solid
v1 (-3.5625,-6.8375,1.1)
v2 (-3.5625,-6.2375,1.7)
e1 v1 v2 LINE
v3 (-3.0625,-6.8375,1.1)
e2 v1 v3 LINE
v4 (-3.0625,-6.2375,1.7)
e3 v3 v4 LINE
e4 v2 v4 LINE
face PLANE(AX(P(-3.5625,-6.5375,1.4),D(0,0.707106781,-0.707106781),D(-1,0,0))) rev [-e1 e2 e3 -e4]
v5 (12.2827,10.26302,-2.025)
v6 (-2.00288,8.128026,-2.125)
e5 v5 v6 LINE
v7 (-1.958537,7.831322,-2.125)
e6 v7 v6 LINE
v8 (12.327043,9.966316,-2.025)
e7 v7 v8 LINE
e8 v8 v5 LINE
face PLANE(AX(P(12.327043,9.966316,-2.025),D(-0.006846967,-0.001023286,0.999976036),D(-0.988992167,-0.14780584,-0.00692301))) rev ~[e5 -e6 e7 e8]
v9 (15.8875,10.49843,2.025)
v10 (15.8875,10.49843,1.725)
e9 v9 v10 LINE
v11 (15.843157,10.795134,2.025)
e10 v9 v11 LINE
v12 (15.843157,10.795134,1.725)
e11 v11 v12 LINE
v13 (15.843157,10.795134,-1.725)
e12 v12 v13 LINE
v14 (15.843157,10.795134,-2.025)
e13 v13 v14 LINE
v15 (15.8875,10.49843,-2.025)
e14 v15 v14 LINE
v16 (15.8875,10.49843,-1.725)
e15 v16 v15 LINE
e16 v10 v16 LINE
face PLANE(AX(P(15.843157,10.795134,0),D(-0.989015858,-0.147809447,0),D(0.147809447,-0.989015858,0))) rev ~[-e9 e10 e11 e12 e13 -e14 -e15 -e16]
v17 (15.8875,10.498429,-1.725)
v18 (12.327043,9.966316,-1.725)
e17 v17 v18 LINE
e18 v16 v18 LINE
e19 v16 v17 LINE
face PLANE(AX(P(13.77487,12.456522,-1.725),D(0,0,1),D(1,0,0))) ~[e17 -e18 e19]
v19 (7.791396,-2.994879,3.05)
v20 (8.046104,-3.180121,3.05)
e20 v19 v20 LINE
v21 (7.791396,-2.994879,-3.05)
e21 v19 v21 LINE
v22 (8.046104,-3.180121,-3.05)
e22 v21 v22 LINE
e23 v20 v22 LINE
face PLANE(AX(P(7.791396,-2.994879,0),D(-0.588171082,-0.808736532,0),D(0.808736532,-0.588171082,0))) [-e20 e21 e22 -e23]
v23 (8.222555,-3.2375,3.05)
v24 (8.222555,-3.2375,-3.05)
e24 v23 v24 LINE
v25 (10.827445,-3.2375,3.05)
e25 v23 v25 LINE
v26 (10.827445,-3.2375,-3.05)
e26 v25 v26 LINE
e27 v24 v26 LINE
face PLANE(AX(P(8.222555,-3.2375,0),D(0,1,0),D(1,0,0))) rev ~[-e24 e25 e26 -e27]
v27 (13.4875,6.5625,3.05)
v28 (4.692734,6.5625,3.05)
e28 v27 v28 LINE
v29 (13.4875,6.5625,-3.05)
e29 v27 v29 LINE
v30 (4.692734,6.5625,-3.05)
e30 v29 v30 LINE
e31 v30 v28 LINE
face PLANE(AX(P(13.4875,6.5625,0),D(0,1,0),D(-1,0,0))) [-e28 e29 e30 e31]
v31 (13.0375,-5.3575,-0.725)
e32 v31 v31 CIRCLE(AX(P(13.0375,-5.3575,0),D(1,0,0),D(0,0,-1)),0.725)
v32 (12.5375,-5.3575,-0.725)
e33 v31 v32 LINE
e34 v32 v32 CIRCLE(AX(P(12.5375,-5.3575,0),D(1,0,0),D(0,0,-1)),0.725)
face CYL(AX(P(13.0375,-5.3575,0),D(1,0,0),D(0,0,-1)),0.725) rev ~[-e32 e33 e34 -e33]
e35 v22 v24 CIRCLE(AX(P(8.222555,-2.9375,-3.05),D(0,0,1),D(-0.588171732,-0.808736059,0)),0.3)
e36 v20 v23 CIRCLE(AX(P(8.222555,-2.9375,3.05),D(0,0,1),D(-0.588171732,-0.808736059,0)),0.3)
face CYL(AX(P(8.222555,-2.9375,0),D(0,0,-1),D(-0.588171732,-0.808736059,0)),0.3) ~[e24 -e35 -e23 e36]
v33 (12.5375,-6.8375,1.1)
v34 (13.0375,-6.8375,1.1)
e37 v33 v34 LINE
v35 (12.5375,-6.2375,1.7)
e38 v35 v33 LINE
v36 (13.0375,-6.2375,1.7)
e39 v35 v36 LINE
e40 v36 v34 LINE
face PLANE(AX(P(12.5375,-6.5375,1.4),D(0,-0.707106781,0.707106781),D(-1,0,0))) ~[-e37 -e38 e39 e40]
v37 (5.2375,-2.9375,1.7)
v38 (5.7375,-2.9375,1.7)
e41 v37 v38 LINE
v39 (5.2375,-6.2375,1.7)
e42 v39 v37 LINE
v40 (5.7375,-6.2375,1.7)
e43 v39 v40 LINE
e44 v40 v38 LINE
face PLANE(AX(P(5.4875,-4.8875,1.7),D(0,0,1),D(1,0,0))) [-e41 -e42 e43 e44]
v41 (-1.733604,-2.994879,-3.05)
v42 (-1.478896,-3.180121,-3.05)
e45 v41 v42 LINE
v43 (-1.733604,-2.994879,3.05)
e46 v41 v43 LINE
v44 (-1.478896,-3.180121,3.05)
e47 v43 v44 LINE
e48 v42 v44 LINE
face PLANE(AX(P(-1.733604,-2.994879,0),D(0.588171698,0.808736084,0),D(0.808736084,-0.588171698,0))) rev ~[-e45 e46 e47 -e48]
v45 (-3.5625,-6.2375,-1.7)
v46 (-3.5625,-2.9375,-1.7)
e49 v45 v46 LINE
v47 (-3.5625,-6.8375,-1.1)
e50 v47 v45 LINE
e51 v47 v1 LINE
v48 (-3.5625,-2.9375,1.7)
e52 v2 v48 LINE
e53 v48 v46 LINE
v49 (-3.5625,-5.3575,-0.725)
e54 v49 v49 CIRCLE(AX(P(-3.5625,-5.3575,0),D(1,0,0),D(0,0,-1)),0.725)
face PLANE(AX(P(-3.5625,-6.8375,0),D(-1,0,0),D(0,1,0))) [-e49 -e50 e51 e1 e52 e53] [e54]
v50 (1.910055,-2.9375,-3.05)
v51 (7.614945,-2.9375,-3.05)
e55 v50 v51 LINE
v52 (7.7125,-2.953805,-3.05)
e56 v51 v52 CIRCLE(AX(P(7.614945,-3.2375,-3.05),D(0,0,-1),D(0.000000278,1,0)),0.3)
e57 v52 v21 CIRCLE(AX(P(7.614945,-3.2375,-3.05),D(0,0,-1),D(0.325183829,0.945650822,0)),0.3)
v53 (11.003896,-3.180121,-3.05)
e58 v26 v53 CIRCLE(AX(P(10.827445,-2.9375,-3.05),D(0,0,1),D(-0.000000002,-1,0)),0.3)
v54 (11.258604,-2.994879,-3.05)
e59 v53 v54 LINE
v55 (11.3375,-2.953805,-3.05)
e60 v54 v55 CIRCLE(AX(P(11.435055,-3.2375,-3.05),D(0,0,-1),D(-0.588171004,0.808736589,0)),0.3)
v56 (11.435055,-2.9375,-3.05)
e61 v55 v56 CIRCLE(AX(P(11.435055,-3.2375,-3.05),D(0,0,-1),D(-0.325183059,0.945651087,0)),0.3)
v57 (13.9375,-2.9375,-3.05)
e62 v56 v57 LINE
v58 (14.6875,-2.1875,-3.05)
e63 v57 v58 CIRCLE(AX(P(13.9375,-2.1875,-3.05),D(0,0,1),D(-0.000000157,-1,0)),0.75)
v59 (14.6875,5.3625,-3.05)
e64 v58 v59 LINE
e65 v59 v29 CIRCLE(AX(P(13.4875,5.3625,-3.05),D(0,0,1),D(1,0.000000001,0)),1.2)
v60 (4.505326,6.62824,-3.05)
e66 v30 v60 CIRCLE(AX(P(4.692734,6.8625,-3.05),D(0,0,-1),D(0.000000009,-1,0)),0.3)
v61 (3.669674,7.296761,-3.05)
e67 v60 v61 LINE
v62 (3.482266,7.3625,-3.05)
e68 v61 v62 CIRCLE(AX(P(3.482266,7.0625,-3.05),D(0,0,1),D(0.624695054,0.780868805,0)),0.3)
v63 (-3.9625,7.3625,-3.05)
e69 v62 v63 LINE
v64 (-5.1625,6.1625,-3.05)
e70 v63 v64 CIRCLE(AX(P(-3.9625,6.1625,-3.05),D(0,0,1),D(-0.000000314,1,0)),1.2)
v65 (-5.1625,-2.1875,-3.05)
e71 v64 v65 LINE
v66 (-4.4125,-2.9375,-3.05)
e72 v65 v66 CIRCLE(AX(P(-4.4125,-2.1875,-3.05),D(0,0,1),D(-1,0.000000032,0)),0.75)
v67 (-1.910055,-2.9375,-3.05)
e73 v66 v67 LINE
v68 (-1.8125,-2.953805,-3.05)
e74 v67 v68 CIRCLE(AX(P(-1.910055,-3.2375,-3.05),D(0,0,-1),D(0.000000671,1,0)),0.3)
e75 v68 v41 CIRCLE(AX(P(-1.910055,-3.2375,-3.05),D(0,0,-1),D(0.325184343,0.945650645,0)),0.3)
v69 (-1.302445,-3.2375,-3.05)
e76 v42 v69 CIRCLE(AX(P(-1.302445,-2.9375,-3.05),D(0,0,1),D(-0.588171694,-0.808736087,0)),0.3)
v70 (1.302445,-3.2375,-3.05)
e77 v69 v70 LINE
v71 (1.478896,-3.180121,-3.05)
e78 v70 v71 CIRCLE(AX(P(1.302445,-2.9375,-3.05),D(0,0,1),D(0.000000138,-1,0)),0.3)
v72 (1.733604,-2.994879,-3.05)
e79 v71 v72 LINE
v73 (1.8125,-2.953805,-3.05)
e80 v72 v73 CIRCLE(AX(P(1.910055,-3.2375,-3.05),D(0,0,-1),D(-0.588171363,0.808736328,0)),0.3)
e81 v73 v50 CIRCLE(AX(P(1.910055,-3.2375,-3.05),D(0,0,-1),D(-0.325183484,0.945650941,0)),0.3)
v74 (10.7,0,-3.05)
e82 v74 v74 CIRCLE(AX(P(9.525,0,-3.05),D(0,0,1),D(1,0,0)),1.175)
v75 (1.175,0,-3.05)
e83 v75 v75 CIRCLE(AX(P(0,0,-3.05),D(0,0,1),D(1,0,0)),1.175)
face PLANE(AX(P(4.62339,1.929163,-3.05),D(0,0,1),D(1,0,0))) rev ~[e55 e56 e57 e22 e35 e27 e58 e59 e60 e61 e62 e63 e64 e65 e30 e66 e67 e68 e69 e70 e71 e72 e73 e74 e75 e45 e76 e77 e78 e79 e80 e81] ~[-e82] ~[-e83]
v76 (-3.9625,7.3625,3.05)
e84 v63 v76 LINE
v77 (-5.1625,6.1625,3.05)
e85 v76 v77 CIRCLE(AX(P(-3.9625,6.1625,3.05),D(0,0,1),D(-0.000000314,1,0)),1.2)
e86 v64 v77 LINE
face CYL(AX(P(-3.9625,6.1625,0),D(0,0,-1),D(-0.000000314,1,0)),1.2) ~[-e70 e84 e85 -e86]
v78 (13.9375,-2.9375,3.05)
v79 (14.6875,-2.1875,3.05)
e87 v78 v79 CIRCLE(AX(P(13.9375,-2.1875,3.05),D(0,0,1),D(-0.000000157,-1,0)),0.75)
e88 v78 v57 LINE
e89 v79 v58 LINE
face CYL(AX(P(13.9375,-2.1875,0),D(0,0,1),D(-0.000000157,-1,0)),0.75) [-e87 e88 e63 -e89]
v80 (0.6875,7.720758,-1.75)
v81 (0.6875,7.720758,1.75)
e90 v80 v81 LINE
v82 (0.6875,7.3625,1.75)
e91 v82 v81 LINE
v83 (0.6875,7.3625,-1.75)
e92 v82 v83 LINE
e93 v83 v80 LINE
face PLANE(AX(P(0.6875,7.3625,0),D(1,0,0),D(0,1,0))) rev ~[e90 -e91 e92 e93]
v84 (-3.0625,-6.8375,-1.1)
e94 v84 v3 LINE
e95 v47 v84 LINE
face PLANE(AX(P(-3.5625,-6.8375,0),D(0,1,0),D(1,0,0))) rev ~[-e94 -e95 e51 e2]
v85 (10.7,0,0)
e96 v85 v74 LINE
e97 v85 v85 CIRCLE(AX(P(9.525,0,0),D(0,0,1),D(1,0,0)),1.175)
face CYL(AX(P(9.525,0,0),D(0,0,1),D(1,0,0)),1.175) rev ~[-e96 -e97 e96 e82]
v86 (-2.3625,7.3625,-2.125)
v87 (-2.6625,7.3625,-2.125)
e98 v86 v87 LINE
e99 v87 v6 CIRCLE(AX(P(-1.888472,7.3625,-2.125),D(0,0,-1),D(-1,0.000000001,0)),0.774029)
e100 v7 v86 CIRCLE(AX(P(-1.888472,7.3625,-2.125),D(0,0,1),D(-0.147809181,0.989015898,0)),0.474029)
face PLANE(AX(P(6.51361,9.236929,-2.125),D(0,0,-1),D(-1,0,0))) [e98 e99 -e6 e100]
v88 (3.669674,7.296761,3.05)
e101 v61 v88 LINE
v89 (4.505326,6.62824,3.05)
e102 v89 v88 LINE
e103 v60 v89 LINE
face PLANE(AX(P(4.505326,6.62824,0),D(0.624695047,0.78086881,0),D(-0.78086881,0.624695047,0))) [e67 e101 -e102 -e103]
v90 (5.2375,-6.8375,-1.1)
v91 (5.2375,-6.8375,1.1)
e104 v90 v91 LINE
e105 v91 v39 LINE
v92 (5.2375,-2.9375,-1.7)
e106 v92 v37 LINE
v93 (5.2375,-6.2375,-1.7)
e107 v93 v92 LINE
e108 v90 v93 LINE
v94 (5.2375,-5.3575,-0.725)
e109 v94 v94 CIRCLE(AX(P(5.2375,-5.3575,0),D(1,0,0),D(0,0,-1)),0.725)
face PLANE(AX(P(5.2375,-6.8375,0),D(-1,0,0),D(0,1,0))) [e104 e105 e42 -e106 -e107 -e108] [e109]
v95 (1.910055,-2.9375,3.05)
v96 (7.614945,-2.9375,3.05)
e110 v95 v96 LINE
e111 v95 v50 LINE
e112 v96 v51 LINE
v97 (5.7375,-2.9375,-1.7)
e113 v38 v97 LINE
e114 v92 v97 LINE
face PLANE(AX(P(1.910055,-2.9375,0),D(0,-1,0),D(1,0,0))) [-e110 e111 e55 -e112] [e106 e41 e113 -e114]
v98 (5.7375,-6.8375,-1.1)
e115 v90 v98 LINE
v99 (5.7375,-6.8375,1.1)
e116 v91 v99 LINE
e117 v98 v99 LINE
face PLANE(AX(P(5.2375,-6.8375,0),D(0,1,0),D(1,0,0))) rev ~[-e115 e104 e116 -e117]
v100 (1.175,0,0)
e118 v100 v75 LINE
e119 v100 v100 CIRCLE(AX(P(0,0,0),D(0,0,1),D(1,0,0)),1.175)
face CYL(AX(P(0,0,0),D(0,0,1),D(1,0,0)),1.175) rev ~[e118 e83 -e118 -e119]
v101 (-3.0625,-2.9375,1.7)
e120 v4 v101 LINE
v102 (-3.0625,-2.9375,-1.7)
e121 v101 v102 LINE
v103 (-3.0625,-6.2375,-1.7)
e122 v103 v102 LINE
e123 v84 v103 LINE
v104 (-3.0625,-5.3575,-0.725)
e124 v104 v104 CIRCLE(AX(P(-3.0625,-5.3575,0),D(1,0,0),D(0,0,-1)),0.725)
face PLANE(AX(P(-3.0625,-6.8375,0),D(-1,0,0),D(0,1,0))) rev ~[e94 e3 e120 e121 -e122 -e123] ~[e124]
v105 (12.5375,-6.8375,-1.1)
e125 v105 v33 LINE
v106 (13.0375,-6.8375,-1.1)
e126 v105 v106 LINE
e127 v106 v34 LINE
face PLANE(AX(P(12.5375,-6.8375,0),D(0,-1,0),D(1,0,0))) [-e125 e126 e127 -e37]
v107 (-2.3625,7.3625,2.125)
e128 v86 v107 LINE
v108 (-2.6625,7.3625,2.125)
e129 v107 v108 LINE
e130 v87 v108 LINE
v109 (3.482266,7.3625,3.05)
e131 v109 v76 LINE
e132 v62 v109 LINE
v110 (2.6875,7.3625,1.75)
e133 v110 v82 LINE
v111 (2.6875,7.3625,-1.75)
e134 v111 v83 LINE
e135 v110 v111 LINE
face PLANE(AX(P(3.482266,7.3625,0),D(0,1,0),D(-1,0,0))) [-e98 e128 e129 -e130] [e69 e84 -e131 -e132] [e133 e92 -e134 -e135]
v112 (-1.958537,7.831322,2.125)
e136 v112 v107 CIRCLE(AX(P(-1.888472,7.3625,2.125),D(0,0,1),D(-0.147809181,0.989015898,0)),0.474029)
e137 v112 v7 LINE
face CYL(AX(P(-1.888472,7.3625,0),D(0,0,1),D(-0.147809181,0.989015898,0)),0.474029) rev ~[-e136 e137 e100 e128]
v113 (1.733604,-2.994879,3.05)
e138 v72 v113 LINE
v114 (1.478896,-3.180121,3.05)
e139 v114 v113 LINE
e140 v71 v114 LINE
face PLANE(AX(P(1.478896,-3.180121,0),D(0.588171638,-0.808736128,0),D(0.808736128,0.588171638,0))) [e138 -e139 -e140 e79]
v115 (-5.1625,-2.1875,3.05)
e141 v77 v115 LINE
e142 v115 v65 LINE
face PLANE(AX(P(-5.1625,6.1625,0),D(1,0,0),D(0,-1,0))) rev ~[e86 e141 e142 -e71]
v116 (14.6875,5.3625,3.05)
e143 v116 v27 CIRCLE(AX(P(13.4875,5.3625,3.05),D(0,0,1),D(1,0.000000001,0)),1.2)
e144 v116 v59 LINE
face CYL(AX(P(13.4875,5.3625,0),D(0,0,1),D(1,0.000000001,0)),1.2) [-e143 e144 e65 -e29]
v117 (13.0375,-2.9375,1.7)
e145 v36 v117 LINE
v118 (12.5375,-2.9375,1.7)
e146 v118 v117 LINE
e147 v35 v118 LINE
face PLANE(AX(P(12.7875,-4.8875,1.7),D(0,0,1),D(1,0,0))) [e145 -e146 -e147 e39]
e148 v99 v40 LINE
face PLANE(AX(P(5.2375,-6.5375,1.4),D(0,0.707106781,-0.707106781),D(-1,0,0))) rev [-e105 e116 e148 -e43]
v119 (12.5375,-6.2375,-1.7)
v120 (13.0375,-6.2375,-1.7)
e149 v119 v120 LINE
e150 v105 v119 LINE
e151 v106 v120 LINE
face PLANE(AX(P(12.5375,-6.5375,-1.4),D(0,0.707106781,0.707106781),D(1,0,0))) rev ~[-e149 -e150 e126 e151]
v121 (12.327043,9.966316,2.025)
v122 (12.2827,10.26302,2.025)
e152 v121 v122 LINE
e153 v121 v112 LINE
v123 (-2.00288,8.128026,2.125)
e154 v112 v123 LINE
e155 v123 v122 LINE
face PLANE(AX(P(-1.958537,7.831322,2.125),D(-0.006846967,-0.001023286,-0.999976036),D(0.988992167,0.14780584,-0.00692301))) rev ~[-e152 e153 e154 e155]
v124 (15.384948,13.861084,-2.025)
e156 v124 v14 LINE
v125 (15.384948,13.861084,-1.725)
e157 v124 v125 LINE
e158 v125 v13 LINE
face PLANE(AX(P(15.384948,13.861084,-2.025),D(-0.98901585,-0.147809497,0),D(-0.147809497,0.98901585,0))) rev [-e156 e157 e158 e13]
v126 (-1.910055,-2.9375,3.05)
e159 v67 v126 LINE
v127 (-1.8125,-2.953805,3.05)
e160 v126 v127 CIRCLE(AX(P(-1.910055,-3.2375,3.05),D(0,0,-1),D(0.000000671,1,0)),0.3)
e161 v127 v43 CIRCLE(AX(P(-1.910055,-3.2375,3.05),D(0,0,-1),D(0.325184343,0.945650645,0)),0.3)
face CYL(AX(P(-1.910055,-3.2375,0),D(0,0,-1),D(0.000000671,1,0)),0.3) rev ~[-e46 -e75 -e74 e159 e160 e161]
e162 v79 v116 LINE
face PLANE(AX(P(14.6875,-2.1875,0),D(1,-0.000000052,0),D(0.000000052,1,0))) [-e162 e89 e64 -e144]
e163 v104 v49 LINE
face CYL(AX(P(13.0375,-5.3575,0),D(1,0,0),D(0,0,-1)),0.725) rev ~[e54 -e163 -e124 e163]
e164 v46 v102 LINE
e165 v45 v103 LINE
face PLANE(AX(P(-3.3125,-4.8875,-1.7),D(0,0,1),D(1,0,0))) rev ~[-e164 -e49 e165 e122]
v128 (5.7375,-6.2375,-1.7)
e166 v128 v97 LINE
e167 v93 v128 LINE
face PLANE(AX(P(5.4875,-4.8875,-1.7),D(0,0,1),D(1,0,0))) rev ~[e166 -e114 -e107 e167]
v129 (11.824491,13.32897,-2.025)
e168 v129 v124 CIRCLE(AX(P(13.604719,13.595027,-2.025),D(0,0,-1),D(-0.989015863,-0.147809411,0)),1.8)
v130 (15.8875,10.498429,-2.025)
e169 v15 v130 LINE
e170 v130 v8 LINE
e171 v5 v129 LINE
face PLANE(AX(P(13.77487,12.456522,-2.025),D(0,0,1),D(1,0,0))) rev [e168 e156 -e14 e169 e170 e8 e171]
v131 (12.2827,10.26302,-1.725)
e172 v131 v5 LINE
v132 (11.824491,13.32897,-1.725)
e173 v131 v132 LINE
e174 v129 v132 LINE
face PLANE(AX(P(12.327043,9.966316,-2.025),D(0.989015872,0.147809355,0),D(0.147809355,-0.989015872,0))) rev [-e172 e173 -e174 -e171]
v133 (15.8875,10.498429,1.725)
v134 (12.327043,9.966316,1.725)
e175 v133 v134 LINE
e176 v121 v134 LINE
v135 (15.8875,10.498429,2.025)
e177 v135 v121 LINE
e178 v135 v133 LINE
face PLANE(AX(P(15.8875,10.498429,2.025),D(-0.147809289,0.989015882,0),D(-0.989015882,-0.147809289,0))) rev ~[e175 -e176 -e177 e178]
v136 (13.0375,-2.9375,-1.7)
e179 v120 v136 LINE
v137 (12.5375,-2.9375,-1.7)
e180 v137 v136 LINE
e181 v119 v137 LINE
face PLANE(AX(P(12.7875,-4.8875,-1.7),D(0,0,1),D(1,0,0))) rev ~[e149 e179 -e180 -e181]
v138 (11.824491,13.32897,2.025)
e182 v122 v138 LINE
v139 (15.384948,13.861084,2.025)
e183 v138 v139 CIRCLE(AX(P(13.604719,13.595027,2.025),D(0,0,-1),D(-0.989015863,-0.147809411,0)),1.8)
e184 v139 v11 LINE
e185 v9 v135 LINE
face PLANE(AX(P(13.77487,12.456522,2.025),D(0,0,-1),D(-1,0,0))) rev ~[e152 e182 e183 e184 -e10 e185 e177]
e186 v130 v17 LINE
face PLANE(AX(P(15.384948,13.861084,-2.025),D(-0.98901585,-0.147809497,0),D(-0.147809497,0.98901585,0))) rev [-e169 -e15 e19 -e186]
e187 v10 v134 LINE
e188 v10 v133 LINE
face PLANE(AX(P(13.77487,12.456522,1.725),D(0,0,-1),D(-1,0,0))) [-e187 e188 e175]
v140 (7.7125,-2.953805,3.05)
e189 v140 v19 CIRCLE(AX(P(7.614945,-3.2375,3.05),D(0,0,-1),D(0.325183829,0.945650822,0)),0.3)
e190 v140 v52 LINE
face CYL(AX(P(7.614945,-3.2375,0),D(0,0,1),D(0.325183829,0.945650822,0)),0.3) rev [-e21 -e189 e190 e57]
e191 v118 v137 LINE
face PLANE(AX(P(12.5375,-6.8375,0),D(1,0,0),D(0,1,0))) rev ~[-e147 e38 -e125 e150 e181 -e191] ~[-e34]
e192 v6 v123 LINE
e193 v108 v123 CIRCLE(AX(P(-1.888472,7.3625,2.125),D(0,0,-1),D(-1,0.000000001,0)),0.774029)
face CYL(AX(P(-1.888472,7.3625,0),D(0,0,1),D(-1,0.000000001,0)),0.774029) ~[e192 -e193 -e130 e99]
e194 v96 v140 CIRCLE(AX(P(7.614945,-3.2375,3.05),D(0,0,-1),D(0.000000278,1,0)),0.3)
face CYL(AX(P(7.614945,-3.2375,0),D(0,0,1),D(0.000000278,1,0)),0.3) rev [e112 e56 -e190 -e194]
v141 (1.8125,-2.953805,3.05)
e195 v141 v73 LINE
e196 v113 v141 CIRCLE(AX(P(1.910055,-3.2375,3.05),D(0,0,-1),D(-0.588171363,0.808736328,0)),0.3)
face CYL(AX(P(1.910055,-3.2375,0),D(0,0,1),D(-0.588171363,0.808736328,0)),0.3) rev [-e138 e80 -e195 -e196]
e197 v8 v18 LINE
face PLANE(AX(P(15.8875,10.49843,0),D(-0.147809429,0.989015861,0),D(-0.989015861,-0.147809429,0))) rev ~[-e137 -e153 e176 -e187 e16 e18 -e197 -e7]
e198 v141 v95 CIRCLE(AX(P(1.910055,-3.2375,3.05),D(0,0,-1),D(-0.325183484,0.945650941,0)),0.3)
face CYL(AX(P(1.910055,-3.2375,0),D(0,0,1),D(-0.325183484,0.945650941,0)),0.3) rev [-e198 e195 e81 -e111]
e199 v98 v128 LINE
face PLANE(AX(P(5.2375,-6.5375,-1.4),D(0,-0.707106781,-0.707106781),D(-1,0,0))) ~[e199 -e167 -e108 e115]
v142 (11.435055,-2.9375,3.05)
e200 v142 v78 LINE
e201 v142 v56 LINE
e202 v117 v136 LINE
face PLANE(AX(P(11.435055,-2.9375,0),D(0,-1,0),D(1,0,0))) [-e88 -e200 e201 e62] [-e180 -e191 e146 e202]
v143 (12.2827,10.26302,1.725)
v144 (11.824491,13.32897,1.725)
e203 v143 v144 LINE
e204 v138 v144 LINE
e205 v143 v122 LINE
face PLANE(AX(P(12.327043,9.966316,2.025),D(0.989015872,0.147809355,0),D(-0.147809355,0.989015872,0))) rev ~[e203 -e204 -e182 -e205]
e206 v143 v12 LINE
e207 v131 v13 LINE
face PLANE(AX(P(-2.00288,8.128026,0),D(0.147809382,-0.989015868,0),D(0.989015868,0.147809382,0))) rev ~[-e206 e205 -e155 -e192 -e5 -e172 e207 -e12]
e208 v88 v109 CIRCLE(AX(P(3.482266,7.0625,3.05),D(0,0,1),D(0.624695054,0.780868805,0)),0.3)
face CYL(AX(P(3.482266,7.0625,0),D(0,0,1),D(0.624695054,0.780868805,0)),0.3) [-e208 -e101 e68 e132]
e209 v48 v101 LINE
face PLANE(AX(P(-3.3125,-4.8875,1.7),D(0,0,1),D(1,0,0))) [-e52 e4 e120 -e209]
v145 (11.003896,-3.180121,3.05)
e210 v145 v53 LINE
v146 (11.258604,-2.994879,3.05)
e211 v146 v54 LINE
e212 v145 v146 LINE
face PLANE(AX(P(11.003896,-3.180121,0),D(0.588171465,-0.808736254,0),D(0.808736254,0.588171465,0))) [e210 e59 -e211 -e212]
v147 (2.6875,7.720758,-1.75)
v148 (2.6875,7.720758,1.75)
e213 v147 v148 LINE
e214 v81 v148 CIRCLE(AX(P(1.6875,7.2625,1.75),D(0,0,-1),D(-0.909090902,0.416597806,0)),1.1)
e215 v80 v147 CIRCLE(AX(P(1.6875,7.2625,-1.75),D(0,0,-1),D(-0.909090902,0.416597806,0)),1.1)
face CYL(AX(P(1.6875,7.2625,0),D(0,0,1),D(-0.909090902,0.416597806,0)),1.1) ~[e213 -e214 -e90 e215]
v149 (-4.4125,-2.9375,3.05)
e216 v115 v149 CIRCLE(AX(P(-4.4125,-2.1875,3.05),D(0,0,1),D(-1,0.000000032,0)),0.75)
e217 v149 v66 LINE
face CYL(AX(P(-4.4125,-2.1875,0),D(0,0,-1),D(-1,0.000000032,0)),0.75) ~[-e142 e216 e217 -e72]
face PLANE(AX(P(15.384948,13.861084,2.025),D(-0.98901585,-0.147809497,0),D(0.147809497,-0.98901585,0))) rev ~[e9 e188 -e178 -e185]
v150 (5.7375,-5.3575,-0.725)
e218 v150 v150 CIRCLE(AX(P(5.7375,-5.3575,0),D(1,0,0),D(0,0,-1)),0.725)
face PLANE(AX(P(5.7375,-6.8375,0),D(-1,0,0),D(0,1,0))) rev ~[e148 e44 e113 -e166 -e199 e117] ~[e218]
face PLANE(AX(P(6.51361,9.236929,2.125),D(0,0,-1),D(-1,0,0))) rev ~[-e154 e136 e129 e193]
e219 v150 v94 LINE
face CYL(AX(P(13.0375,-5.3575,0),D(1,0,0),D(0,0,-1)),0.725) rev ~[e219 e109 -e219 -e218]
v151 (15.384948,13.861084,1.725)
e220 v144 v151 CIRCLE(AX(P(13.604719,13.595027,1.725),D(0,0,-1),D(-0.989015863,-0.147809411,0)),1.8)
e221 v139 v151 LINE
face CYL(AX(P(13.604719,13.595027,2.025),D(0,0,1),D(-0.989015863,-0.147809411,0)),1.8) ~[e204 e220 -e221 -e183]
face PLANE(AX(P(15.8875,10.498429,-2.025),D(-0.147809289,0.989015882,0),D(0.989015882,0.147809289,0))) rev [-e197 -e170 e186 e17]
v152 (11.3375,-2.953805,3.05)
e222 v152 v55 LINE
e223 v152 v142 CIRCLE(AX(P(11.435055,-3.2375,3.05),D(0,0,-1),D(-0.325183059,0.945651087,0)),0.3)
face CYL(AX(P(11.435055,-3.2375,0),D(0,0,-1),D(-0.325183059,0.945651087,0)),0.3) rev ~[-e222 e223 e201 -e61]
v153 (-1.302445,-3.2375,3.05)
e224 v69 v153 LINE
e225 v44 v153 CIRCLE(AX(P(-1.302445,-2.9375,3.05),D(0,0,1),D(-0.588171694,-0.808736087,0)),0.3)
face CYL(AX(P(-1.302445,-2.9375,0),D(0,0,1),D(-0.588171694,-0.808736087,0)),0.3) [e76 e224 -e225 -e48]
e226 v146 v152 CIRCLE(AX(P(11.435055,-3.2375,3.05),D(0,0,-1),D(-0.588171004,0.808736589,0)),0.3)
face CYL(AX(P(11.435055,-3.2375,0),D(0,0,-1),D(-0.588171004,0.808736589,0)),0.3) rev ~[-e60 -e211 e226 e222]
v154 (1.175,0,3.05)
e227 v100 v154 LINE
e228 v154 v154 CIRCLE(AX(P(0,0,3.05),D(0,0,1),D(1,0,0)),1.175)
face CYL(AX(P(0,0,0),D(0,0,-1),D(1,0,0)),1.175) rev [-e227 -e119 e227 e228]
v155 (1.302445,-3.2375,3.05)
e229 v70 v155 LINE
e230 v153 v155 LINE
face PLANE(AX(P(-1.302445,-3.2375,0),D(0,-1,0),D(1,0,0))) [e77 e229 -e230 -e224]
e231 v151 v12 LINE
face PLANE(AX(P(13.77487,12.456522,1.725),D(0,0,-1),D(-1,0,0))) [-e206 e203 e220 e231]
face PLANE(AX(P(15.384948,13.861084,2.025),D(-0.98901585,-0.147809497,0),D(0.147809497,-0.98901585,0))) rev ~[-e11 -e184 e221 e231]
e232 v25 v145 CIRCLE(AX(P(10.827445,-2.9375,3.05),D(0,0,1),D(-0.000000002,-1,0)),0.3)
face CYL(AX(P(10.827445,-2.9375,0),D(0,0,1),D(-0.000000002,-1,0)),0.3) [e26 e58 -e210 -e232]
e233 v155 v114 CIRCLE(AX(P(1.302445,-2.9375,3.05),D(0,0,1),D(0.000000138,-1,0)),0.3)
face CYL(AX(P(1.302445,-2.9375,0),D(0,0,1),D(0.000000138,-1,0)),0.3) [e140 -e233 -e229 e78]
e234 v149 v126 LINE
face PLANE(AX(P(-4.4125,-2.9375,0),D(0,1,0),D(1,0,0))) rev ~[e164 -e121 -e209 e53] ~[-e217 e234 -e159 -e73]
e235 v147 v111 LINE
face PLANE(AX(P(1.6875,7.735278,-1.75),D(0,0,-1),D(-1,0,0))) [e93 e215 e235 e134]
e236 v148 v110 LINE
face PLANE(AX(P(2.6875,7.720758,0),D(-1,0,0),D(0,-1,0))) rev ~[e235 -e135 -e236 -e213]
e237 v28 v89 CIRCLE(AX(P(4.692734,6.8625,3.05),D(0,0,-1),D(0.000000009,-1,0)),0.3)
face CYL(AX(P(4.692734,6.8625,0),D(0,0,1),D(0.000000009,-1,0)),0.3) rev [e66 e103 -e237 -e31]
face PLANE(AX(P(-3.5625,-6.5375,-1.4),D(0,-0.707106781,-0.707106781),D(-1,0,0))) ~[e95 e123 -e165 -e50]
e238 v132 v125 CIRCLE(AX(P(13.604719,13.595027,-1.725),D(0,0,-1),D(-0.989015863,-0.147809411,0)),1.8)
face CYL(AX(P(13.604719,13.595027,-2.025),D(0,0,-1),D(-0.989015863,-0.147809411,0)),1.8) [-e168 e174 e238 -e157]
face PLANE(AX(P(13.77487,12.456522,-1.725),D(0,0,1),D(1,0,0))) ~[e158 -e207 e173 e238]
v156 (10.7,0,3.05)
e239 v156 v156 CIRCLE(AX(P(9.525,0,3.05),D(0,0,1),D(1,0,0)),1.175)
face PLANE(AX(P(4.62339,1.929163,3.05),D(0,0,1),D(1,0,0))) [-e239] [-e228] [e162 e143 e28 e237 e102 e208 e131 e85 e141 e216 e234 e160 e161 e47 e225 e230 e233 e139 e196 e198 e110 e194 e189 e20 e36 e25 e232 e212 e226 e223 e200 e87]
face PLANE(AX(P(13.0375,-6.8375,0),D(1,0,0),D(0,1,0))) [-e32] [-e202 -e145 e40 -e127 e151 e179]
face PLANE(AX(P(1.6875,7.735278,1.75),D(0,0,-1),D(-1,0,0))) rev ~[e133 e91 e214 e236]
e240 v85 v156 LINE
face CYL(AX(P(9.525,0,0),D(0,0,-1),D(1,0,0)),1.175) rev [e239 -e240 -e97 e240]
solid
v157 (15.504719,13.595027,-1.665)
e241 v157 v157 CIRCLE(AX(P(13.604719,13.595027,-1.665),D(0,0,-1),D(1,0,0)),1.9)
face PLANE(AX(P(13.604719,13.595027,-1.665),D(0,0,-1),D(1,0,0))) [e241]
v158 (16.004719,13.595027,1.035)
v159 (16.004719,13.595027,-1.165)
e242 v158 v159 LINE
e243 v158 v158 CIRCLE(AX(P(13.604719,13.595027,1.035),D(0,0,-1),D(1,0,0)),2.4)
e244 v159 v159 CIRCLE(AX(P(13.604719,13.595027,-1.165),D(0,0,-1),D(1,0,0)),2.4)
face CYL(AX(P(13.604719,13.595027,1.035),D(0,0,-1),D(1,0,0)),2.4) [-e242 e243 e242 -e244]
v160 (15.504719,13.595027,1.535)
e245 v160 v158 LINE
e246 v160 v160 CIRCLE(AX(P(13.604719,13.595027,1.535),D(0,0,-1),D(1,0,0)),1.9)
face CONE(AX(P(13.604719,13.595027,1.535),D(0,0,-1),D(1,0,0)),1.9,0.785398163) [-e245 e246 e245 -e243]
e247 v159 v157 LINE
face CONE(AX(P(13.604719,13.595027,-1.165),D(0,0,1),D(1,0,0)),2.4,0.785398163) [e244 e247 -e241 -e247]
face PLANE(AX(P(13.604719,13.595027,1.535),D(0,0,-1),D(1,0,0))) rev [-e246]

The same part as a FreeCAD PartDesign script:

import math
import FreeCAD as App
import Part
import Sketcher
Q = App.Units.Quantity


def edges_at(feature, points):
    """Names of the edges that pass closest to the given points."""
    edges = feature.Shape.Edges
    near = lambda p: min(range(len(edges)), key=lambda i: edges[i].distToShape(Part.Vertex(*p))[0])
    return sorted({f"Edge{near(p) + 1}" for p in points})

doc = App.newDocument("Part")
body = doc.addObject("PartDesign::Body", "Body")

# Sketch on XY plane
sketch1 = body.newObject("Sketcher::SketchObject", "Sketch")
sketch1.AttachmentSupport = (doc.getObject("XY_Plane"), [""])
sketch1.MapMode = "FlatFace"
sketch1.addGeometry([
    Part.LineSegment(App.Vector(13.49, 6.56, 0), App.Vector(4.69, 6.56, 0)),  # 0
    Part.ArcOfCircle(Part.Circle(App.Vector(4.69, 6.86, 0), App.Vector(0, 0, 1), 0.3), math.radians(-129), math.radians(-90)),  # 1
    Part.LineSegment(App.Vector(4.51, 6.63, 0), App.Vector(3.67, 7.3, 0)),  # 2
    Part.ArcOfCircle(Part.Circle(App.Vector(3.48, 7.06, 0), App.Vector(0, 0, 1), 0.3), math.radians(51), math.radians(90)),  # 3
    Part.LineSegment(App.Vector(3.48, 7.36, 0), App.Vector(-3.96, 7.36, 0)),  # 4
    Part.ArcOfCircle(Part.Circle(App.Vector(-3.96, 6.16, 0), App.Vector(0, 0, 1), 1.2), math.radians(90), math.radians(180)),  # 5
    Part.LineSegment(App.Vector(-5.16, 6.16, 0), App.Vector(-5.16, -2.19, 0)),  # 6
    Part.ArcOfCircle(Part.Circle(App.Vector(-4.41, -2.19, 0), App.Vector(0, 0, 1), 0.75), math.radians(180), math.radians(270)),  # 7
    Part.LineSegment(App.Vector(-4.41, -2.94, 0), App.Vector(-1.91, -2.94, 0)),  # 8
    Part.ArcOfCircle(Part.Circle(App.Vector(-1.91, -3.24, 0), App.Vector(0, 0, 1), 0.3), math.radians(71.02), math.radians(90)),  # 9
    Part.ArcOfCircle(Part.Circle(App.Vector(-1.91, -3.24, 0), App.Vector(0, 0, 1), 0.3), math.radians(53.97), math.radians(71.02)),  # 10
    Part.LineSegment(App.Vector(-1.73, -2.99, 0), App.Vector(-1.48, -3.18, 0)),  # 11
    Part.ArcOfCircle(Part.Circle(App.Vector(-1.3, -2.94, 0), App.Vector(0, 0, 1), 0.3), math.radians(-126), math.radians(-90)),  # 12
    Part.LineSegment(App.Vector(-1.3, -3.24, 0), App.Vector(1.3, -3.24, 0)),  # 13
    Part.ArcOfCircle(Part.Circle(App.Vector(1.3, -2.94, 0), App.Vector(0, 0, 1), 0.3), math.radians(-90), math.radians(-54)),  # 14
    Part.LineSegment(App.Vector(1.48, -3.18, 0), App.Vector(1.73, -2.99, 0)),  # 15
    Part.ArcOfCircle(Part.Circle(App.Vector(1.91, -3.24, 0), App.Vector(0, 0, 1), 0.3), math.radians(108.98), math.radians(126.03)),  # 16
    Part.ArcOfCircle(Part.Circle(App.Vector(1.91, -3.24, 0), App.Vector(0, 0, 1), 0.3), math.radians(90), math.radians(108.98)),  # 17
    Part.LineSegment(App.Vector(1.91, -2.94, 0), App.Vector(7.61, -2.94, 0)),  # 18
    Part.ArcOfCircle(Part.Circle(App.Vector(7.61, -3.24, 0), App.Vector(0, 0, 1), 0.3), math.radians(71.02), math.radians(90)),  # 19
    Part.ArcOfCircle(Part.Circle(App.Vector(7.61, -3.24, 0), App.Vector(0, 0, 1), 0.3), math.radians(53.97), math.radians(71.02)),  # 20
    Part.LineSegment(App.Vector(7.79, -2.99, 0), App.Vector(8.05, -3.18, 0)),  # 21
    Part.ArcOfCircle(Part.Circle(App.Vector(8.22, -2.94, 0), App.Vector(0, 0, 1), 0.3), math.radians(-126), math.radians(-90)),  # 22
    Part.LineSegment(App.Vector(8.22, -3.24, 0), App.Vector(10.83, -3.24, 0)),  # 23
    Part.ArcOfCircle(Part.Circle(App.Vector(10.83, -2.94, 0), App.Vector(0, 0, 1), 0.3), math.radians(-90), math.radians(-54)),  # 24
    Part.LineSegment(App.Vector(11, -3.18, 0), App.Vector(11.26, -2.99, 0)),  # 25
    Part.ArcOfCircle(Part.Circle(App.Vector(11.44, -3.24, 0), App.Vector(0, 0, 1), 0.3), math.radians(108.98), math.radians(126.03)),  # 26
    Part.ArcOfCircle(Part.Circle(App.Vector(11.44, -3.24, 0), App.Vector(0, 0, 1), 0.3), math.radians(90), math.radians(108.98)),  # 27
    Part.LineSegment(App.Vector(11.44, -2.94, 0), App.Vector(13.94, -2.94, 0)),  # 28
    Part.ArcOfCircle(Part.Circle(App.Vector(13.94, -2.19, 0), App.Vector(0, 0, 1), 0.75), math.radians(-90), math.radians(0)),  # 29
    Part.LineSegment(App.Vector(14.69, -2.19, 0), App.Vector(14.69, 5.36, 0)),  # 30
    Part.ArcOfCircle(Part.Circle(App.Vector(13.49, 5.36, 0), App.Vector(0, 0, 1), 1.2), math.radians(0), math.radians(90)),  # 31
    Part.Circle(App.Vector(0, 0, 0), App.Vector(0, 0, 1), 1.18),  # 32
    Part.Circle(App.Vector(9.52, 0, 0), App.Vector(0, 0, 1), 1.18),  # 33
], False)
sketch1.addConstraint([
    Sketcher.Constraint("Tangent", 0, 2, 1, 2),
    Sketcher.Constraint("Tangent", 1, 1, 2, 1),
    Sketcher.Constraint("Tangent", 2, 2, 3, 1),
    Sketcher.Constraint("Tangent", 3, 2, 4, 1),
    Sketcher.Constraint("Tangent", 4, 2, 5, 1),
    Sketcher.Constraint("Tangent", 5, 2, 6, 1),
    Sketcher.Constraint("Tangent", 6, 2, 7, 1),
    Sketcher.Constraint("Tangent", 7, 2, 8, 1),
    Sketcher.Constraint("Tangent", 8, 2, 9, 2),
    Sketcher.Constraint("Tangent", 9, 1, 10, 2),
    Sketcher.Constraint("Tangent", 10, 1, 11, 1),
    Sketcher.Constraint("Tangent", 11, 2, 12, 1),
    Sketcher.Constraint("Tangent", 12, 2, 13, 1),
    Sketcher.Constraint("Tangent", 13, 2, 14, 1),
    Sketcher.Constraint("Tangent", 14, 2, 15, 1),
    Sketcher.Constraint("Tangent", 15, 2, 16, 2),
    Sketcher.Constraint("Tangent", 16, 1, 17, 2),
    Sketcher.Constraint("Tangent", 17, 1, 18, 1),
    Sketcher.Constraint("Tangent", 18, 2, 19, 2),
    Sketcher.Constraint("Tangent", 19, 1, 20, 2),
    Sketcher.Constraint("Tangent", 20, 1, 21, 1),
    Sketcher.Constraint("Tangent", 21, 2, 22, 1),
    Sketcher.Constraint("Tangent", 22, 2, 23, 1),
    Sketcher.Constraint("Tangent", 23, 2, 24, 1),
    Sketcher.Constraint("Tangent", 24, 2, 25, 1),
    Sketcher.Constraint("Tangent", 25, 2, 26, 2),
    Sketcher.Constraint("Tangent", 26, 1, 27, 2),
    Sketcher.Constraint("Tangent", 27, 1, 28, 1),
    Sketcher.Constraint("Tangent", 28, 2, 29, 1),
    Sketcher.Constraint("Tangent", 29, 2, 30, 1),
    Sketcher.Constraint("Tangent", 30, 2, 31, 1),
    Sketcher.Constraint("Tangent", 31, 2, 0, 1),
    Sketcher.Constraint("Horizontal", 0),
    Sketcher.Constraint("Horizontal", 4),
    Sketcher.Constraint("Vertical", 6),
    Sketcher.Constraint("Horizontal", 8),
    Sketcher.Constraint("Horizontal", 13),
    Sketcher.Constraint("Horizontal", 18),
    Sketcher.Constraint("Horizontal", 23),
    Sketcher.Constraint("Horizontal", 28),
    Sketcher.Constraint("Vertical", 30),
    Sketcher.Constraint("Coincident", 32, 3, -1, 1),
    Sketcher.Constraint("Equal", 1, 3),
    Sketcher.Constraint("Equal", 3, 9),
    Sketcher.Constraint("Equal", 9, 10),
    Sketcher.Constraint("Equal", 10, 12),
    Sketcher.Constraint("Equal", 12, 14),
    Sketcher.Constraint("Equal", 14, 16),
    Sketcher.Constraint("Equal", 16, 17),
    Sketcher.Constraint("Equal", 17, 19),
    Sketcher.Constraint("Equal", 19, 20),
    Sketcher.Constraint("Equal", 20, 22),
    Sketcher.Constraint("Equal", 22, 24),
    Sketcher.Constraint("Equal", 24, 26),
    Sketcher.Constraint("Equal", 26, 27),
    Sketcher.Constraint("Equal", 7, 29),
    Sketcher.Constraint("Equal", 5, 31),
    Sketcher.Constraint("Equal", 32, 33),
    Sketcher.Constraint("Symmetric", 9, 3, 16, 3, -2),
    Sketcher.Constraint("PointOnObject", 33, 3, -1),
    Sketcher.Constraint("Parallel", 11, 21),
    Sketcher.Constraint("Parallel", 15, 25),
    Sketcher.Constraint("Horizontal", 14, 3, 22, 3),
    Sketcher.Constraint("Horizontal", 20, 3, 26, 3),
    Sketcher.Constraint("Horizontal", 24, 3, 7, 2),
    Sketcher.Constraint("Horizontal", 11, 2, 14, 2),
    Sketcher.Constraint("Horizontal", 9, 1, 16, 1),
    Sketcher.Constraint("Horizontal", 16, 1, 19, 1),
    Sketcher.Constraint("Horizontal", 19, 1, 26, 1),
    Sketcher.Constraint("Equal", 13, 23),
    Sketcher.Constraint("Equal", 8, 28),
    Sketcher.Constraint("Radius", 1, 0.3),
    Sketcher.Constraint("Radius", 5, 1.2),
    Sketcher.Constraint("Diameter", 32, 2.35),
    Sketcher.Constraint("Radius", 7, 0.75),
    Sketcher.Constraint("DistanceY", 12, 3, 3, 3, 10.0),
    Sketcher.Constraint("DistanceY", 30, 1, 30, 2, 7.55),
    Sketcher.Constraint("DistanceX", 7, 2, 9, 1, 2.6),
    Sketcher.Constraint("DistanceX", -1, 1, 33, 3, 9.525),
    Sketcher.Constraint("DistanceX", 9, 3, 19, 3, 9.525),
    Sketcher.Constraint("DistanceX", 13, 1, 13, 2, 2.60489),
    Sketcher.Constraint("DistanceX", 18, 1, 18, 2, 5.70489),
    Sketcher.Constraint("DistanceY", -1, 1, 1, 3, 6.8625),
    Sketcher.Constraint("DistanceX", 5, 3, -1, 1, 3.9625),
    Sketcher.Constraint("DistanceX", 0, 2, 0, 1, 8.794765),
    Sketcher.Constraint("DistanceX", 4, 2, 4, 1, 7.444766),
])
pad1 = body.newObject("PartDesign::Pad", "Pad")
pad1.Profile = sketch1
pad1.Length = 6.1
pad1.Midplane = True

# Sketch on XY plane
sketch2 = body.newObject("Sketcher::SketchObject", "Sketch001")
sketch2.AttachmentSupport = (doc.getObject("XY_Plane"), [""])
sketch2.MapMode = "FlatFace"
sketch2.addGeometry([
    Part.LineSegment(App.Vector(-3.56, -2.94, 0), App.Vector(-3.56, -6.84, 0)),  # 0
    Part.LineSegment(App.Vector(-3.56, -6.84, 0), App.Vector(-3.06, -6.84, 0)),  # 1
    Part.LineSegment(App.Vector(-3.06, -6.84, 0), App.Vector(-3.06, -2.94, 0)),  # 2
    Part.LineSegment(App.Vector(-3.06, -2.94, 0), App.Vector(-3.56, -2.94, 0)),  # 3
    Part.LineSegment(App.Vector(5.24, -2.94, 0), App.Vector(5.24, -6.84, 0)),  # 4
    Part.LineSegment(App.Vector(5.24, -6.84, 0), App.Vector(5.74, -6.84, 0)),  # 5
    Part.LineSegment(App.Vector(5.74, -6.84, 0), App.Vector(5.74, -2.94, 0)),  # 6
    Part.LineSegment(App.Vector(5.74, -2.94, 0), App.Vector(5.24, -2.94, 0)),  # 7
    Part.LineSegment(App.Vector(12.54, -2.94, 0), App.Vector(12.54, -6.84, 0)),  # 8
    Part.LineSegment(App.Vector(12.54, -6.84, 0), App.Vector(13.04, -6.84, 0)),  # 9
    Part.LineSegment(App.Vector(13.04, -6.84, 0), App.Vector(13.04, -2.94, 0)),  # 10
    Part.LineSegment(App.Vector(13.04, -2.94, 0), App.Vector(12.54, -2.94, 0)),  # 11
], False)
sketch2.addConstraint([
    Sketcher.Constraint("Coincident", 0, 2, 1, 1),
    Sketcher.Constraint("Coincident", 1, 2, 2, 1),
    Sketcher.Constraint("Coincident", 2, 2, 3, 1),
    Sketcher.Constraint("Coincident", 3, 2, 0, 1),
    Sketcher.Constraint("Coincident", 4, 2, 5, 1),
    Sketcher.Constraint("Coincident", 5, 2, 6, 1),
    Sketcher.Constraint("Coincident", 6, 2, 7, 1),
    Sketcher.Constraint("Coincident", 7, 2, 4, 1),
    Sketcher.Constraint("Coincident", 8, 2, 9, 1),
    Sketcher.Constraint("Coincident", 9, 2, 10, 1),
    Sketcher.Constraint("Coincident", 10, 2, 11, 1),
    Sketcher.Constraint("Coincident", 11, 2, 8, 1),
    Sketcher.Constraint("Vertical", 0),
    Sketcher.Constraint("Horizontal", 1),
    Sketcher.Constraint("Vertical", 2),
    Sketcher.Constraint("Horizontal", 3),
    Sketcher.Constraint("Vertical", 4),
    Sketcher.Constraint("Horizontal", 5),
    Sketcher.Constraint("Vertical", 6),
    Sketcher.Constraint("Horizontal", 7),
    Sketcher.Constraint("Vertical", 8),
    Sketcher.Constraint("Horizontal", 9),
    Sketcher.Constraint("Vertical", 10),
    Sketcher.Constraint("Horizontal", 11),
    Sketcher.Constraint("Horizontal", 1, 2, 4, 2),
    Sketcher.Constraint("Horizontal", 3, 2, 6, 2),
    Sketcher.Constraint("Horizontal", 5, 2, 8, 2),
    Sketcher.Constraint("Horizontal", 7, 2, 10, 2),
    Sketcher.Constraint("Equal", 3, 5),
    Sketcher.Constraint("Equal", 7, 9),
    Sketcher.Constraint("DistanceX", 1, 1, 1, 2, 0.5),
    Sketcher.Constraint("DistanceY", 0, 2, 0, 1, 3.9),
    Sketcher.Constraint("DistanceX", 1, 2, 4, 2, 8.3),
    Sketcher.Constraint("DistanceX", 5, 2, 8, 2, 6.8),
    Sketcher.Constraint("DistanceX", 0, 2, -1, 1, 3.5625),
    Sketcher.Constraint("DistanceY", 0, 2, -1, 1, 6.8375),
])
pad2 = body.newObject("PartDesign::Pad", "Pad001")
pad2.Profile = sketch2
pad2.Length = 3.4
pad2.Midplane = True
doc.recompute()

chamfer = body.newObject("PartDesign::Chamfer", "Chamfer")
chamfer.Base = (pad2, edges_at(pad2, [
    (5.487, -6.838, -1.7),
    (5.487, -6.838, 1.7),
    (12.787, -6.838, -1.7),
    (12.787, -6.838, 1.7),
    (-3.313, -6.838, -1.7),
    (-3.313, -6.838, 1.7),
]))
chamfer.Size = 0.6

# Sketch on YZ plane
sketch3 = body.newObject("Sketcher::SketchObject", "Sketch002")
sketch3.AttachmentSupport = (doc.getObject("YZ_Plane"), [""])
sketch3.MapMode = "FlatFace"
sketch3.AttachmentOffset = App.Placement(App.Vector(0, 0, 13.0375), App.Rotation())
sketch3.addGeometry(Part.Circle(App.Vector(-5.4, 0, 0), App.Vector(0, 0, 1), 0.7), False)
sketch3.addConstraint([
    Sketcher.Constraint("PointOnObject", 0, 3, -1),
    Sketcher.Constraint("Diameter", 0, 1.45),
    Sketcher.Constraint("DistanceX", 0, 3, -1, 1, 5.3575),
])
pocket1 = body.newObject("PartDesign::Pocket", "Pocket")
pocket1.Profile = sketch3
pocket1.Type = "ThroughAll"

# Sketch on XY plane
sketch4 = body.newObject("Sketcher::SketchObject", "Sketch003")
sketch4.AttachmentSupport = (doc.getObject("XY_Plane"), [""])
sketch4.MapMode = "FlatFace"
sketch4.addGeometry([
    Part.LineSegment(App.Vector(15.84, 10.8, 0), App.Vector(-2, 8.13, 0)),  # 0
    Part.ArcOfCircle(Part.Circle(App.Vector(-1.89, 7.36, 0), App.Vector(0, 0, 1), 0.77), math.radians(98), math.radians(180)),  # 1
    Part.LineSegment(App.Vector(-2.66, 7.36, 0), App.Vector(-2.36, 7.36, 0)),  # 2
    Part.ArcOfCircle(Part.Circle(App.Vector(-1.89, 7.36, 0), App.Vector(0, 0, 1), 0.47), math.radians(98), math.radians(180)),  # 3
    Part.LineSegment(App.Vector(-1.96, 7.83, 0), App.Vector(15.89, 10.5, 0)),  # 4
    Part.LineSegment(App.Vector(15.89, 10.5, 0), App.Vector(15.84, 10.8, 0)),  # 5
], False)
sketch4.addConstraint([
    Sketcher.Constraint("Tangent", 0, 2, 1, 1),
    Sketcher.Constraint("Coincident", 1, 2, 2, 1),
    Sketcher.Constraint("Coincident", 2, 2, 3, 2),
    Sketcher.Constraint("Tangent", 3, 1, 4, 1),
    Sketcher.Constraint("Coincident", 4, 2, 5, 1),
    Sketcher.Constraint("Coincident", 5, 2, 0, 1),
    Sketcher.Constraint("Horizontal", 2),
    Sketcher.Constraint("Coincident", 3, 3, 1, 3),
    Sketcher.Constraint("Parallel", 0, 4),
    Sketcher.Constraint("Perpendicular", 4, 5),
    Sketcher.Constraint("Horizontal", 3, 3, 1, 2),
    Sketcher.Constraint("DistanceX", 2, 1, 2, 2, 0.3),
    Sketcher.Constraint("Angle", 0, Q("-171.500002 deg")),
    Sketcher.Constraint("Radius", 1, 0.774029),
    Sketcher.Constraint("DistanceX", 2, 2, 4, 2, 18.25),
    Sketcher.Constraint("DistanceY", -1, 1, 1, 3, 7.3625),
    Sketcher.Constraint("DistanceX", 1, 2, -1, 1, 2.6625),
])
pad3 = body.newObject("PartDesign::Pad", "Pad002")
pad3.Profile = sketch4
pad3.Length = 4.25
pad3.Midplane = True

# Sketch on an angled plane
sketch5 = body.newObject("Sketcher::SketchObject", "Sketch004")
sketch5.Placement = App.Placement(App.Vector(-1.187618, 7.946536, 0), App.Rotation(App.Vector(0.989015868, 0.147809382, 0), App.Vector(0, 0, -1.000000001), App.Vector(-0.147809382, 0.989015868, 0), "ZXY"))
sketch5.addGeometry([
    Part.LineSegment(App.Vector(13.66, 2.03, 0), App.Vector(17.26, 2.03, 0)),  # 0
    Part.LineSegment(App.Vector(17.26, 2.03, 0), App.Vector(17.26, 2.13, 0)),  # 1
    Part.LineSegment(App.Vector(17.26, 2.13, 0), App.Vector(-0.78, 2.13, 0)),  # 2
    Part.LineSegment(App.Vector(-0.78, 2.13, 0), App.Vector(13.66, 2.03, 0)),  # 3
    Part.LineSegment(App.Vector(17.26, -2.03, 0), App.Vector(13.66, -2.03, 0)),  # 4
    Part.LineSegment(App.Vector(13.66, -2.03, 0), App.Vector(-0.78, -2.13, 0)),  # 5
    Part.LineSegment(App.Vector(-0.78, -2.13, 0), App.Vector(17.26, -2.13, 0)),  # 6
    Part.LineSegment(App.Vector(17.26, -2.13, 0), App.Vector(17.26, -2.03, 0)),  # 7
], False)
sketch5.addConstraint([
    Sketcher.Constraint("Coincident", 0, 2, 1, 1),
    Sketcher.Constraint("Coincident", 1, 2, 2, 1),
    Sketcher.Constraint("Coincident", 2, 2, 3, 1),
    Sketcher.Constraint("Coincident", 3, 2, 0, 1),
    Sketcher.Constraint("Coincident", 4, 2, 5, 1),
    Sketcher.Constraint("Coincident", 5, 2, 6, 1),
    Sketcher.Constraint("Coincident", 6, 2, 7, 1),
    Sketcher.Constraint("Coincident", 7, 2, 4, 1),
    Sketcher.Constraint("Horizontal", 0),
    Sketcher.Constraint("Vertical", 1),
    Sketcher.Constraint("Horizontal", 2),
    Sketcher.Constraint("Horizontal", 4),
    Sketcher.Constraint("Horizontal", 6),
    Sketcher.Constraint("Vertical", 7),
    Sketcher.Constraint("Symmetric", 3, 2, 4, 2, -1),
    Sketcher.Constraint("Symmetric", 2, 2, 5, 2, -1),
    Sketcher.Constraint("Vertical", 1, 2, 6, 2),
    Sketcher.Constraint("DistanceX", 0, 1, 0, 2, 3.6),
    Sketcher.Constraint("DistanceY", 1, 1, 1, 2, 0.1),
    Sketcher.Constraint("DistanceY", 4, 2, 3, 2, 4.05),
    Sketcher.Constraint("DistanceX", 2, 2, 2, 1, 18.044238),
    Sketcher.Constraint("DistanceX", 2, 2, -1, 1, 0.779482),
])
pocket2 = body.newObject("PartDesign::Pocket", "Pocket001")
pocket2.Profile = sketch5
pocket2.Length = 0.3
pocket2.Reversed = True

# Sketch on XY plane
sketch6 = body.newObject("Sketcher::SketchObject", "Sketch005")
sketch6.AttachmentSupport = (doc.getObject("XY_Plane"), [""])
sketch6.MapMode = "FlatFace"
sketch6.AttachmentOffset = App.Placement(App.Vector(0, 0, 2.025), App.Rotation())
sketch6.addGeometry([
    Part.LineSegment(App.Vector(15.9, 10.5, 0), App.Vector(15.4, 13.9, 0)),
    Part.ArcOfCircle(Part.Circle(App.Vector(13.6, 13.6, 0), App.Vector(0, 0, 1), 1.8), math.radians(8), math.radians(188)),
    Part.LineSegment(App.Vector(11.8, 13.3, 0), App.Vector(12.3, 10, 0)),
    Part.LineSegment(App.Vector(12.3, 10, 0), App.Vector(15.9, 10.5, 0)),
], False)
sketch6.addConstraint([
    Sketcher.Constraint("Tangent", 0, 2, 1, 1),
    Sketcher.Constraint("Tangent", 1, 2, 2, 1),
    Sketcher.Constraint("Coincident", 2, 2, 3, 1),
    Sketcher.Constraint("Coincident", 3, 2, 0, 1),
    Sketcher.Constraint("Parallel", 0, 2),
    Sketcher.Constraint("Perpendicular", 2, 3),
    Sketcher.Constraint("Radius", 1, 1.8),
    Sketcher.Constraint("Angle", 0, Q("98.500005 deg")),
    Sketcher.Constraint("Distance", 0, 3.4),
    Sketcher.Constraint("DistanceX", -1, 1, 3, 2, 15.8875),
    Sketcher.Constraint("DistanceY", -1, 1, 1, 2, 13.32897),
])
pad4 = body.newObject("PartDesign::Pad", "Pad003")
pad4.Profile = sketch6
pad4.Length = 0.3
pad4.Reversed = True
doc.recompute()

mirrored = body.newObject("PartDesign::Mirrored", "Mirrored")
mirrored.Originals = [pad4]
mirrored.MirrorPlane = (doc.getObject("XY_Plane"), [""])
body.Tip = mirrored

# Sketch on XY plane
sketch7 = body.newObject("Sketcher::SketchObject", "Sketch006")
sketch7.AttachmentSupport = (doc.getObject("XY_Plane"), [""])
sketch7.MapMode = "FlatFace"
sketch7.addGeometry([
    Part.LineSegment(App.Vector(2.69, 7.36, 0), App.Vector(2.69, 7.72, 0)),
    Part.ArcOfCircle(Part.Circle(App.Vector(1.69, 7.26, 0), App.Vector(0, 0, 1), 1.1), math.radians(25), math.radians(155)),
    Part.LineSegment(App.Vector(0.69, 7.72, 0), App.Vector(0.69, 7.36, 0)),
    Part.LineSegment(App.Vector(0.69, 7.36, 0), App.Vector(2.69, 7.36, 0)),
], False)
sketch7.addConstraint([
    Sketcher.Constraint("Coincident", 0, 2, 1, 1),
    Sketcher.Constraint("Coincident", 1, 2, 2, 1),
    Sketcher.Constraint("Coincident", 2, 2, 3, 1),
    Sketcher.Constraint("Coincident", 3, 2, 0, 1),
    Sketcher.Constraint("Vertical", 0),
    Sketcher.Constraint("Vertical", 2),
    Sketcher.Constraint("Horizontal", 3),
    Sketcher.Constraint("Horizontal", 0, 2, 1, 2),
    Sketcher.Constraint("Radius", 1, 1.1),
    Sketcher.Constraint("DistanceX", 3, 1, 3, 2, 2.0),
    Sketcher.Constraint("DistanceY", 1, 3, 2, 2, 0.1),
    Sketcher.Constraint("DistanceX", -1, 1, 1, 3, 1.6875),
    Sketcher.Constraint("DistanceY", -1, 1, 1, 3, 7.2625),
])
pad5 = body.newObject("PartDesign::Pad", "Pad004")
pad5.Profile = sketch7
pad5.Length = 3.5
pad5.Midplane = True
body2 = doc.addObject("PartDesign::Body", "Body001")

# Sketch on an angled plane
sketch8 = body2.newObject("Sketcher::SketchObject", "Sketch007")
sketch8.Placement = App.Placement(App.Vector(-1.69017, 11.309191, 0), App.Rotation(App.Vector(0.989015868, 0.147809382, 0), App.Vector(0, 0, -1.000000001), App.Vector(-0.147809382, 0.989015868, 0), "ZXY"))
sketch8.addGeometry([
    Part.LineSegment(App.Vector(15.5, -1.5, 0), App.Vector(15.5, 1.7, 0)),  # 0
    Part.LineSegment(App.Vector(15.5, 1.7, 0), App.Vector(13.6, 1.7, 0)),  # 1
    Part.LineSegment(App.Vector(13.6, 1.7, 0), App.Vector(13.1, 1.2, 0)),  # 2
    Part.LineSegment(App.Vector(13.1, 1.2, 0), App.Vector(13.1, -1, 0)),  # 3
    Part.LineSegment(App.Vector(13.1, -1, 0), App.Vector(13.6, -1.5, 0)),  # 4
    Part.LineSegment(App.Vector(13.6, -1.5, 0), App.Vector(15.5, -1.5, 0)),  # 5
], False)
sketch8.addGeometry(Part.LineSegment(App.Vector(15.5, -1.5, 0), App.Vector(15.5, 1.7, 0)), True)  # axis
sketch8.addConstraint([
    Sketcher.Constraint("Coincident", 0, 2, 1, 1),
    Sketcher.Constraint("Coincident", 1, 2, 2, 1),
    Sketcher.Constraint("Coincident", 2, 2, 3, 1),
    Sketcher.Constraint("Coincident", 3, 2, 4, 1),
    Sketcher.Constraint("Coincident", 4, 2, 5, 1),
    Sketcher.Constraint("Coincident", 5, 2, 0, 1),
    Sketcher.Constraint("Vertical", 0),
    Sketcher.Constraint("Horizontal", 1),
    Sketcher.Constraint("Vertical", 3),
    Sketcher.Constraint("Horizontal", 5),
    Sketcher.Constraint("Vertical", 6),
    Sketcher.Constraint("Coincident", 6, 1, 5, 2),
    Sketcher.Constraint("Perpendicular", 2, 4),
    Sketcher.Constraint("Horizontal", 1, 2, 6, 2),
    Sketcher.Constraint("Vertical", 1, 2, 4, 2),
    Sketcher.Constraint("Equal", 2, 4),
    Sketcher.Constraint("DistanceX", 1, 2, 1, 1, 1.9),
    Sketcher.Constraint("DistanceY", 0, 1, 0, 2, 3.2),
    Sketcher.Constraint("DistanceY", 3, 2, 3, 1, 2.2),
    Sketcher.Constraint("DistanceY", -1, 1, 0, 2, 1.665),
    Sketcher.Constraint("DistanceX", -1, 1, 0, 2, 15.464756),
])
revolution = body2.newObject("PartDesign::Revolution", "Revolution")
revolution.Profile = sketch8
revolution.ReferenceAxis = (sketch8, ["Axis0"])
revolution.Angle = 360

doc.recompute()
